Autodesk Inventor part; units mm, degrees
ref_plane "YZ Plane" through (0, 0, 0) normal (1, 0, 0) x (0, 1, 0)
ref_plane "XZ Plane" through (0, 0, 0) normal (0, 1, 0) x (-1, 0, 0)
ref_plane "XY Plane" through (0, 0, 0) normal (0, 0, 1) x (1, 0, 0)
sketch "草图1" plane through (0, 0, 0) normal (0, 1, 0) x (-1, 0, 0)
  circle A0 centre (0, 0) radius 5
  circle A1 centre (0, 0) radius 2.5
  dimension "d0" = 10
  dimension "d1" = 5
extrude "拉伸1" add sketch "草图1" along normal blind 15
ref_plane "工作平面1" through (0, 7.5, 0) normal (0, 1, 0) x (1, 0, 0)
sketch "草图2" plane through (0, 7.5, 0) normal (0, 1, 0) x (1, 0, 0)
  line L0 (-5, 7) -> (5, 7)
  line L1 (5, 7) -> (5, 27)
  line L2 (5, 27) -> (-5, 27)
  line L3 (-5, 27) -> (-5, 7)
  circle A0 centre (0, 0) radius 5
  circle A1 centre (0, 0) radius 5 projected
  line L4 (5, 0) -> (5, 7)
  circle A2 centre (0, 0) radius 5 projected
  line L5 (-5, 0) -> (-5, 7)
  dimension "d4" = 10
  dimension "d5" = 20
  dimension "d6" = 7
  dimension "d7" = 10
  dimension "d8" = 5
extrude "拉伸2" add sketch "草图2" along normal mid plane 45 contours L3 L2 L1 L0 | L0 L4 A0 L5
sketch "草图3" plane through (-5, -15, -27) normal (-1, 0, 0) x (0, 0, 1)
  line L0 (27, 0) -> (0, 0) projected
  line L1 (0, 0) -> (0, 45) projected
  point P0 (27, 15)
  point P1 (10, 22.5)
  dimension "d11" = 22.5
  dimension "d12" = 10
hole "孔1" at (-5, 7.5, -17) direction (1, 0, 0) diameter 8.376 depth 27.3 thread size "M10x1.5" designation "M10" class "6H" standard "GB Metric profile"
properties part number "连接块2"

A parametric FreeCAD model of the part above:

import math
import FreeCAD as App
import Part
import Sketcher

V = App.Vector
Q = App.Units.Quantity

doc = App.newDocument("Part")
params = doc.addObject("Spreadsheet::Sheet", "Params")
for row, (alias, value) in enumerate([
    ("sketch1_diameter", "10 mm"),
    ("sketch1_diameter2", "5 mm"),
    ("pad1_length", "15 mm"),
    ("sketch2_radius", "5 mm"),
    ("sketch2_height", "27 mm"),
    ("pad2_length", "45 mm"),
    ("hole_diameter", "8.376 mm"),
    ("hole_depth", "27.3 mm"),
], start=1):
    params.set(f"A{row}", alias)
    params.set(f"B{row}", "=" + value)
    params.setAlias(f"B{row}", alias)

body = doc.addObject("PartDesign::Body", "Body")

# Sketch on XZ plane
sketch1 = body.newObject("Sketcher::SketchObject", "Sketch")
sketch1.AttachmentSupport = (doc.getObject("XZ_Plane"), [""])
sketch1.MapMode = "FlatFace"
sketch1.addGeometry([
    Part.Circle(V(0, 0, 0), V(0, 0, 1), 5),
    Part.Circle(V(0, 0, 0), V(0, 0, 1), 2.5),
], False)
sketch1.addConstraint([
    Sketcher.Constraint("Coincident", 0, 3, -1, 1),
    Sketcher.Constraint("Coincident", 1, 3, -1, 1),
    Sketcher.Constraint("Diameter", 0, Q("10 mm")),
    Sketcher.Constraint("Diameter", 1, Q("5 mm")),
])
sketch1.setExpression("Constraints[2]", "Params.sketch1_diameter")
sketch1.setExpression("Constraints[3]", "Params.sketch1_diameter2")
pad1 = body.newObject("PartDesign::Pad", "Pad")
pad1.Profile = sketch1
pad1.setExpression("Length", "Params.pad1_length")
pad1.Reversed = True

# Sketch on XZ plane
sketch2 = body.newObject("Sketcher::SketchObject", "Sketch001")
sketch2.AttachmentSupport = (doc.getObject("XZ_Plane"), [""])
sketch2.MapMode = "FlatFace"
sketch2.AttachmentOffset = App.Placement(V(0, 0, -7.5), App.Rotation())
sketch2.addGeometry([
    Part.LineSegment(V(-5, -27, 0), V(-5, 0, 0)),
    Part.ArcOfCircle(Part.Circle(V(0, 0, 0), V(0, 0, 1), 5), math.radians(180), math.radians(360)),
    Part.LineSegment(V(5, 0, 0), V(5, -27, 0)),
    Part.LineSegment(V(5, -27, 0), V(-5, -27, 0)),
], False)
sketch2.addConstraint([
    Sketcher.Constraint("Tangent", 0, 2, 1, 1),
    Sketcher.Constraint("Tangent", 1, 2, 2, 1),
    Sketcher.Constraint("Coincident", 2, 2, 3, 1),
    Sketcher.Constraint("Coincident", 3, 2, 0, 1),
    Sketcher.Constraint("Vertical", 0),
    Sketcher.Constraint("Vertical", 2),
    Sketcher.Constraint("Horizontal", 3),
    Sketcher.Constraint("Coincident", 1, 3, -1, 1),
    Sketcher.Constraint("Radius", 1, Q("5 mm")),
    Sketcher.Constraint("DistanceY", 0, 1, 0, 2, Q("27 mm")),
])
sketch2.setExpression("Constraints[8]", "Params.sketch2_radius")
sketch2.setExpression("Constraints[9]", "Params.sketch2_height")
pad2 = body.newObject("PartDesign::Pad", "Pad001")
pad2.Profile = sketch2
pad2.setExpression("Length", "Params.pad2_length")
pad2.Midplane = True

# Sketch on YZ plane
sketch3 = body.newObject("Sketcher::SketchObject", "Sketch002")
sketch3.AttachmentSupport = (doc.getObject("YZ_Plane"), [""])
sketch3.MapMode = "FlatFace"
sketch3.AttachmentOffset = App.Placement(V(0, 0, -5), App.Rotation())
sketch3.addGeometry(Part.Circle(V(7.5, -17, 0), V(0, 0, 1), 4.2), False)
sketch3.addConstraint([
    Sketcher.Constraint("Diameter", 0, Q("8.376 mm")),
    Sketcher.Constraint("DistanceY", 0, 3, -1, 1, Q("17 mm")),
    Sketcher.Constraint("DistanceX", -1, 1, 0, 3, Q("7.5 mm")),
])
doc.recompute()
hole = body.newObject("PartDesign::Hole", "Hole")
hole.Profile = sketch3
hole.ThreadType = "None"
hole.setExpression("Diameter", "Params.hole_diameter")
hole.DepthType = "Dimension"
hole.setExpression("Depth", "Params.hole_depth")
hole.DrillPoint = "Flat"
hole.Reversed = True

doc.recompute()
